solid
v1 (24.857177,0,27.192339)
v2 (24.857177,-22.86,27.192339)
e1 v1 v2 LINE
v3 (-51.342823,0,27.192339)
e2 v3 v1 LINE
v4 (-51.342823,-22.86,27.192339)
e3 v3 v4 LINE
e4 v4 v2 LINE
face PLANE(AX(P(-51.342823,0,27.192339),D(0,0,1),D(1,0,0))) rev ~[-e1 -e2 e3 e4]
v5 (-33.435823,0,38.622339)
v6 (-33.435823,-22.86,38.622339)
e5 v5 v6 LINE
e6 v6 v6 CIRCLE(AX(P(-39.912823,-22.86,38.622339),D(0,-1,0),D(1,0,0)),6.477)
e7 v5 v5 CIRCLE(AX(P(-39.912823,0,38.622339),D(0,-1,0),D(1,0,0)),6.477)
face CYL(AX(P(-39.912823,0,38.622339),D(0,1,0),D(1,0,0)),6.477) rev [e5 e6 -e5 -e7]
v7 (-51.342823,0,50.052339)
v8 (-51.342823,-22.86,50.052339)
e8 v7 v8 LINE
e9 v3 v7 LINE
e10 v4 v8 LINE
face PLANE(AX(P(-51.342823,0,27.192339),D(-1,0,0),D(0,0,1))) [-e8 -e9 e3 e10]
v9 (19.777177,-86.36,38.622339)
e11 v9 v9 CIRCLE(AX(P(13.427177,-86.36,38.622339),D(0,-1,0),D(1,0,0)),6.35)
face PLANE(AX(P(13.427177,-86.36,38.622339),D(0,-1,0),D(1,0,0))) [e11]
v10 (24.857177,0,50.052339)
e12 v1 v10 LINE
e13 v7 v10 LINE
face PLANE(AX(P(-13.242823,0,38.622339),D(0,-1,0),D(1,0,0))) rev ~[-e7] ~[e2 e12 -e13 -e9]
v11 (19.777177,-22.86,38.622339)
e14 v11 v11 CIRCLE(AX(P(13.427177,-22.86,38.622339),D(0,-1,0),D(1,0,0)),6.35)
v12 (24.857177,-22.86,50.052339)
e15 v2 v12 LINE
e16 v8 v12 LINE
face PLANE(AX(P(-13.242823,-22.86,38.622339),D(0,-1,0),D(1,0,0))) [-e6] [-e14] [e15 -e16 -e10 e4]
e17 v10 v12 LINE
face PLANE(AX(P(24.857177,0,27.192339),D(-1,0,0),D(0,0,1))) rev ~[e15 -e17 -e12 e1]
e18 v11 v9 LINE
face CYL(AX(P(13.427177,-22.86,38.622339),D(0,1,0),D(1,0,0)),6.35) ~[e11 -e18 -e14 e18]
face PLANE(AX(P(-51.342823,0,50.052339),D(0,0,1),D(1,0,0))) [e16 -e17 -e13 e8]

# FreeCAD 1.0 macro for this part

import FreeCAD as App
import Part
import Sketcher
Q = App.Units.Quantity


def add_polygon(sketch, points):
    """Adds a closed chain of lines whose ends are joined by coincident constraints."""
    first, n = sketch.GeometryCount, len(points)
    for a, b in zip(points, points[1:] + points[:1]):
        sketch.addGeometry(Part.LineSegment(App.Vector(*a, 0), App.Vector(*b, 0)), False)
    for i in range(n):
        sketch.addConstraint(Sketcher.Constraint("Coincident", first + i, 2, first + (i + 1) % n, 1))

doc = App.newDocument("Part")
body = doc.addObject("PartDesign::Body", "Body")

# Sketch on XZ plane
sketch1 = body.newObject("Sketcher::SketchObject", "Sketch")
sketch1.AttachmentSupport = (doc.getObject("XZ_Plane"), [""])
sketch1.MapMode = "FlatFace"
add_polygon(sketch1, [(-51, 50), (-51, 27), (25, 27), (25, 50)])  # lines 0-3
sketch1.addGeometry(Part.Circle(App.Vector(-40, 39, 0), App.Vector(0, 0, 1), 6), False)  # 4
sketch1.addConstraint(Sketcher.Constraint("Vertical", 0))
sketch1.addConstraint(Sketcher.Constraint("Horizontal", 1))
sketch1.addConstraint(Sketcher.Constraint("Vertical", 2))
sketch1.addConstraint(Sketcher.Constraint("Horizontal", 3))
sketch1.addConstraint(Sketcher.Constraint("Diameter", 4, Q("0.51 in")))
sketch1.addConstraint(Sketcher.Constraint("DistanceX", 1, 1, 1, 2, Q("3 in")))
sketch1.addConstraint(Sketcher.Constraint("DistanceY", 0, 2, 0, 1, Q("0.9 in")))
sketch1.addConstraint(Sketcher.Constraint("DistanceX", 0, 2, 4, 3, Q("0.45 in")))
sketch1.addConstraint(Sketcher.Constraint("DistanceY", 0, 2, 4, 3, Q("0.45 in")))
sketch1.addConstraint(Sketcher.Constraint("DistanceY", -1, 1, 4, 3, Q("38.622339 mm")))
sketch1.addConstraint(Sketcher.Constraint("DistanceX", 4, 3, -1, 1, Q("39.912823 mm")))
pad1 = body.newObject("PartDesign::Pad", "Pad")
pad1.Profile = sketch1
pad1.Length = Q("0.9 in")

# Sketch on XZ plane
sketch2 = body.newObject("Sketcher::SketchObject", "Sketch001")
sketch2.AttachmentSupport = (doc.getObject("XZ_Plane"), [""])
sketch2.MapMode = "FlatFace"
sketch2.AttachmentOffset = App.Placement(App.Vector(0, 0, 0.9 * 25.4), App.Rotation())
sketch2.addGeometry(Part.Circle(App.Vector(13, 39, 0), App.Vector(0, 0, 1), 6), False)
sketch2.addConstraint(Sketcher.Constraint("Diameter", 0, Q("0.5 in")))
sketch2.addConstraint(Sketcher.Constraint("DistanceY", -1, 1, 0, 3, Q("38.622339 mm")))
sketch2.addConstraint(Sketcher.Constraint("DistanceX", -1, 1, 0, 3, Q("13.427177 mm")))
pad2 = body.newObject("PartDesign::Pad", "Pad001")
pad2.Profile = sketch2
pad2.Length = Q("2.5 in")

doc.recompute()
